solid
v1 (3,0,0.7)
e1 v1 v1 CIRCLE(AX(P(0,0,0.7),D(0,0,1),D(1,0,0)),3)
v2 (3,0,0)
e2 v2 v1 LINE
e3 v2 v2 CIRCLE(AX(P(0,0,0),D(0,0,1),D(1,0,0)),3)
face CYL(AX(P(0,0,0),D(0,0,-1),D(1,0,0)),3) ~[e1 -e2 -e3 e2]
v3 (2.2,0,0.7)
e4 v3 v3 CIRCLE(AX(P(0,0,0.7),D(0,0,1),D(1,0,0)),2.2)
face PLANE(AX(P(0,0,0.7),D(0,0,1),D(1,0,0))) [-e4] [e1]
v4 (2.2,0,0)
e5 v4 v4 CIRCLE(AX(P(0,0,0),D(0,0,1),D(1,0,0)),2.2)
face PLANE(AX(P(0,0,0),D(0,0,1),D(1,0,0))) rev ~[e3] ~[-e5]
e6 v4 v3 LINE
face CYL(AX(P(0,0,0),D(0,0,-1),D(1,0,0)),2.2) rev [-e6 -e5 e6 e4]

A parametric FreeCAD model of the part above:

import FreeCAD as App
import Part
import Sketcher

V = App.Vector
Q = App.Units.Quantity

doc = App.newDocument("Part")
body = doc.addObject("PartDesign::Body", "Body")

# Sketch on XY plane
sketch1 = body.newObject("Sketcher::SketchObject", "Sketch")
sketch1.AttachmentSupport = (doc.getObject("XY_Plane"), [""])
sketch1.MapMode = "FlatFace"
sketch1.addGeometry([
    Part.Circle(V(0, 0, 0), V(0, 0, 1), 3),
    Part.Circle(V(0, 0, 0), V(0, 0, 1), 2.2),
], False)
sketch1.addConstraint([
    Sketcher.Constraint("Coincident", 0, 3, -1, 1),
    Sketcher.Constraint("Coincident", 1, 3, -1, 1),
    Sketcher.Constraint("Diameter", 0, Q("6 mm")),
    Sketcher.Constraint("Diameter", 1, Q("4.4 mm")),
])
pad1 = body.newObject("PartDesign::Pad", "Pad")
pad1.Profile = sketch1
pad1.Length = 0.7

doc.recompute()
